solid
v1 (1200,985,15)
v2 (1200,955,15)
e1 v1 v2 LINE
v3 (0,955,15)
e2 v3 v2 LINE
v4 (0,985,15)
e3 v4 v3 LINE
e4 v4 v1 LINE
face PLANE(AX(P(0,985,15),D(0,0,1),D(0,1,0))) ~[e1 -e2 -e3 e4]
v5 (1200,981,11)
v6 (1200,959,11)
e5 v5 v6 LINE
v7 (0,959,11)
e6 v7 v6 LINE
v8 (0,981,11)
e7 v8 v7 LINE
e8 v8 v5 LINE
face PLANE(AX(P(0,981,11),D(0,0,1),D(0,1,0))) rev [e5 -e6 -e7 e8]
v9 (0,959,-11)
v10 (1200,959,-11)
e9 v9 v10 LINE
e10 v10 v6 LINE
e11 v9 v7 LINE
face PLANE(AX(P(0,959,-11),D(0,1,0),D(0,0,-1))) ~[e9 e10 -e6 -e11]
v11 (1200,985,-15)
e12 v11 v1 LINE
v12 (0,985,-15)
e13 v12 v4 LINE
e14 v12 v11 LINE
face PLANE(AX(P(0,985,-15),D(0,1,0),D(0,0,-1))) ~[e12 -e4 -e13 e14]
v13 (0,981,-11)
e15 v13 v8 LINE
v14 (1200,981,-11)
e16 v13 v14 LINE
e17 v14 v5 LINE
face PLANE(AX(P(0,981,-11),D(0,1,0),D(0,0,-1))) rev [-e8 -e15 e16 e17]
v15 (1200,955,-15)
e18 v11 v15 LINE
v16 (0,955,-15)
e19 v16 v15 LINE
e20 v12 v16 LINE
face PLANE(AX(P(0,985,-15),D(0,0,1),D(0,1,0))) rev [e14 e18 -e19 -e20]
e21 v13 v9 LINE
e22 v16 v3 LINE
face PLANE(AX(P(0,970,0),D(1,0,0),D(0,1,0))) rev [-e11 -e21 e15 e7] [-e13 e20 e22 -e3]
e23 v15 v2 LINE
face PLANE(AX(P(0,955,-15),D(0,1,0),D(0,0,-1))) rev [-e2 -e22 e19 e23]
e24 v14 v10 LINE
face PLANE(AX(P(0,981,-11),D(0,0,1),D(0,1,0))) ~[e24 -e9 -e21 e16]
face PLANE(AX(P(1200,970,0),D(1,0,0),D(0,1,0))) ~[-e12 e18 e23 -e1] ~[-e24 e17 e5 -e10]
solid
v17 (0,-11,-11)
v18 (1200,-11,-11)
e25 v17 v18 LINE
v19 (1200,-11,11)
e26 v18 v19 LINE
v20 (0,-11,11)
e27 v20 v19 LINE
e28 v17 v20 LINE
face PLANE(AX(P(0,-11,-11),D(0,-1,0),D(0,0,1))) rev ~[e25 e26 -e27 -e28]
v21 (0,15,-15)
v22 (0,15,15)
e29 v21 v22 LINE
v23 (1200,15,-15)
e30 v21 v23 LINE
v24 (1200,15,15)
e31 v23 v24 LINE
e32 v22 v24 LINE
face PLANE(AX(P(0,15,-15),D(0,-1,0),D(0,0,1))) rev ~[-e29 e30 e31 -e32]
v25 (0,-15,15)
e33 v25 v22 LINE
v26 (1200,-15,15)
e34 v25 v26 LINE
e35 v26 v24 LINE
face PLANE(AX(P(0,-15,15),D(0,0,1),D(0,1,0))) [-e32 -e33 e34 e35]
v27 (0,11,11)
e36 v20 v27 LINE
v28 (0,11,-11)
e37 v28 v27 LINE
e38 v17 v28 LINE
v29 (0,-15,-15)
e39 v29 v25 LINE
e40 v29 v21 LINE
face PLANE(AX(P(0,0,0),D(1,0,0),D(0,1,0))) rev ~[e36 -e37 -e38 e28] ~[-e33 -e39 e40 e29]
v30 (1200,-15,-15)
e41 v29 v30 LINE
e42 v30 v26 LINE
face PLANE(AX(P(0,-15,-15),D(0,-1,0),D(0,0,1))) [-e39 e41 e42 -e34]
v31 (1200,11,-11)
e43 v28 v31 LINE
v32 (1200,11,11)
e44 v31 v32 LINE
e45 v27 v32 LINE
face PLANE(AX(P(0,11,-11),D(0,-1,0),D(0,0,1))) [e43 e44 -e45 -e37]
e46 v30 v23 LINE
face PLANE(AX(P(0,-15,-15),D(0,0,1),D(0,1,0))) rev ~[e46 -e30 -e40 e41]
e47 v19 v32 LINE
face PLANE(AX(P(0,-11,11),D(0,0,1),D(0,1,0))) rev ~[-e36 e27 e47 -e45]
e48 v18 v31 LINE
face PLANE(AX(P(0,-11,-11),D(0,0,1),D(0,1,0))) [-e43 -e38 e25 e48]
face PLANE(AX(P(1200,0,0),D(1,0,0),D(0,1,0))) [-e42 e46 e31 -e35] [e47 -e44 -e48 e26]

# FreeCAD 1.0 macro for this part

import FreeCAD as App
import Part
import Sketcher
Q = App.Units.Quantity


def add_polygon(sketch, points):
    """Adds a closed chain of lines whose ends are joined by coincident constraints."""
    first, n = sketch.GeometryCount, len(points)
    for a, b in zip(points, points[1:] + points[:1]):
        sketch.addGeometry(Part.LineSegment(App.Vector(*a, 0), App.Vector(*b, 0)), False)
    for i in range(n):
        sketch.addConstraint(Sketcher.Constraint("Coincident", first + i, 2, first + (i + 1) % n, 1))

doc = App.newDocument("Part")
body = doc.addObject("PartDesign::Body", "Body")

# Sketch on YZ plane
sketch1 = doc.addObject("Sketcher::SketchObject", "Sketch")
body.addObject(sketch1)
sketch1.AttachmentSupport = (doc.YZ_Plane, [""])
sketch1.MapMode = "FlatFace"
add_polygon(sketch1, [(-15, 15), (-15, -15), (15, -15), (15, 15)])  # lines 0-3
add_polygon(sketch1, [(11, -11), (-11, -11), (-11, 11), (11, 11)])  # lines 4-7
sketch1.addConstraint([
    Sketcher.Constraint("Vertical", 0),
    Sketcher.Constraint("Horizontal", 1),
    Sketcher.Constraint("Vertical", 2),
    Sketcher.Constraint("Horizontal", 3),
    Sketcher.Constraint("Horizontal", 4),
    Sketcher.Constraint("Vertical", 5),
    Sketcher.Constraint("Horizontal", 6),
    Sketcher.Constraint("Vertical", 7),
    Sketcher.Constraint("Symmetric", 0, 2, 2, 2, -1, 1),
    Sketcher.Constraint("Symmetric", 4, 2, 6, 2, -1, 1),
    Sketcher.Constraint("Equal", 3, 0),
    Sketcher.Constraint("Equal", 6, 5),
    Sketcher.Constraint("DistanceX", 1, 1, 1, 2, Q("30 mm")),
    Sketcher.Constraint("DistanceX", 4, 2, 4, 1, Q("22 mm")),
])
pad1 = doc.addObject("PartDesign::Pad", "Pad")
body.addObject(pad1)
pad1.Profile = sketch1
pad1.Length = 1200
body2 = doc.addObject("PartDesign::Body", "Body001")
doc.recompute()

mirroring = doc.addObject("Part::Mirroring", "Mirroring")
mirroring.Source = body
mirroring.Base = App.Vector(600, 485, 0)
mirroring.Normal = App.Vector(0, 1, 0)
body2.BaseFeature = mirroring
doc.recompute()
mirroring.Visibility = False

doc.recompute()
